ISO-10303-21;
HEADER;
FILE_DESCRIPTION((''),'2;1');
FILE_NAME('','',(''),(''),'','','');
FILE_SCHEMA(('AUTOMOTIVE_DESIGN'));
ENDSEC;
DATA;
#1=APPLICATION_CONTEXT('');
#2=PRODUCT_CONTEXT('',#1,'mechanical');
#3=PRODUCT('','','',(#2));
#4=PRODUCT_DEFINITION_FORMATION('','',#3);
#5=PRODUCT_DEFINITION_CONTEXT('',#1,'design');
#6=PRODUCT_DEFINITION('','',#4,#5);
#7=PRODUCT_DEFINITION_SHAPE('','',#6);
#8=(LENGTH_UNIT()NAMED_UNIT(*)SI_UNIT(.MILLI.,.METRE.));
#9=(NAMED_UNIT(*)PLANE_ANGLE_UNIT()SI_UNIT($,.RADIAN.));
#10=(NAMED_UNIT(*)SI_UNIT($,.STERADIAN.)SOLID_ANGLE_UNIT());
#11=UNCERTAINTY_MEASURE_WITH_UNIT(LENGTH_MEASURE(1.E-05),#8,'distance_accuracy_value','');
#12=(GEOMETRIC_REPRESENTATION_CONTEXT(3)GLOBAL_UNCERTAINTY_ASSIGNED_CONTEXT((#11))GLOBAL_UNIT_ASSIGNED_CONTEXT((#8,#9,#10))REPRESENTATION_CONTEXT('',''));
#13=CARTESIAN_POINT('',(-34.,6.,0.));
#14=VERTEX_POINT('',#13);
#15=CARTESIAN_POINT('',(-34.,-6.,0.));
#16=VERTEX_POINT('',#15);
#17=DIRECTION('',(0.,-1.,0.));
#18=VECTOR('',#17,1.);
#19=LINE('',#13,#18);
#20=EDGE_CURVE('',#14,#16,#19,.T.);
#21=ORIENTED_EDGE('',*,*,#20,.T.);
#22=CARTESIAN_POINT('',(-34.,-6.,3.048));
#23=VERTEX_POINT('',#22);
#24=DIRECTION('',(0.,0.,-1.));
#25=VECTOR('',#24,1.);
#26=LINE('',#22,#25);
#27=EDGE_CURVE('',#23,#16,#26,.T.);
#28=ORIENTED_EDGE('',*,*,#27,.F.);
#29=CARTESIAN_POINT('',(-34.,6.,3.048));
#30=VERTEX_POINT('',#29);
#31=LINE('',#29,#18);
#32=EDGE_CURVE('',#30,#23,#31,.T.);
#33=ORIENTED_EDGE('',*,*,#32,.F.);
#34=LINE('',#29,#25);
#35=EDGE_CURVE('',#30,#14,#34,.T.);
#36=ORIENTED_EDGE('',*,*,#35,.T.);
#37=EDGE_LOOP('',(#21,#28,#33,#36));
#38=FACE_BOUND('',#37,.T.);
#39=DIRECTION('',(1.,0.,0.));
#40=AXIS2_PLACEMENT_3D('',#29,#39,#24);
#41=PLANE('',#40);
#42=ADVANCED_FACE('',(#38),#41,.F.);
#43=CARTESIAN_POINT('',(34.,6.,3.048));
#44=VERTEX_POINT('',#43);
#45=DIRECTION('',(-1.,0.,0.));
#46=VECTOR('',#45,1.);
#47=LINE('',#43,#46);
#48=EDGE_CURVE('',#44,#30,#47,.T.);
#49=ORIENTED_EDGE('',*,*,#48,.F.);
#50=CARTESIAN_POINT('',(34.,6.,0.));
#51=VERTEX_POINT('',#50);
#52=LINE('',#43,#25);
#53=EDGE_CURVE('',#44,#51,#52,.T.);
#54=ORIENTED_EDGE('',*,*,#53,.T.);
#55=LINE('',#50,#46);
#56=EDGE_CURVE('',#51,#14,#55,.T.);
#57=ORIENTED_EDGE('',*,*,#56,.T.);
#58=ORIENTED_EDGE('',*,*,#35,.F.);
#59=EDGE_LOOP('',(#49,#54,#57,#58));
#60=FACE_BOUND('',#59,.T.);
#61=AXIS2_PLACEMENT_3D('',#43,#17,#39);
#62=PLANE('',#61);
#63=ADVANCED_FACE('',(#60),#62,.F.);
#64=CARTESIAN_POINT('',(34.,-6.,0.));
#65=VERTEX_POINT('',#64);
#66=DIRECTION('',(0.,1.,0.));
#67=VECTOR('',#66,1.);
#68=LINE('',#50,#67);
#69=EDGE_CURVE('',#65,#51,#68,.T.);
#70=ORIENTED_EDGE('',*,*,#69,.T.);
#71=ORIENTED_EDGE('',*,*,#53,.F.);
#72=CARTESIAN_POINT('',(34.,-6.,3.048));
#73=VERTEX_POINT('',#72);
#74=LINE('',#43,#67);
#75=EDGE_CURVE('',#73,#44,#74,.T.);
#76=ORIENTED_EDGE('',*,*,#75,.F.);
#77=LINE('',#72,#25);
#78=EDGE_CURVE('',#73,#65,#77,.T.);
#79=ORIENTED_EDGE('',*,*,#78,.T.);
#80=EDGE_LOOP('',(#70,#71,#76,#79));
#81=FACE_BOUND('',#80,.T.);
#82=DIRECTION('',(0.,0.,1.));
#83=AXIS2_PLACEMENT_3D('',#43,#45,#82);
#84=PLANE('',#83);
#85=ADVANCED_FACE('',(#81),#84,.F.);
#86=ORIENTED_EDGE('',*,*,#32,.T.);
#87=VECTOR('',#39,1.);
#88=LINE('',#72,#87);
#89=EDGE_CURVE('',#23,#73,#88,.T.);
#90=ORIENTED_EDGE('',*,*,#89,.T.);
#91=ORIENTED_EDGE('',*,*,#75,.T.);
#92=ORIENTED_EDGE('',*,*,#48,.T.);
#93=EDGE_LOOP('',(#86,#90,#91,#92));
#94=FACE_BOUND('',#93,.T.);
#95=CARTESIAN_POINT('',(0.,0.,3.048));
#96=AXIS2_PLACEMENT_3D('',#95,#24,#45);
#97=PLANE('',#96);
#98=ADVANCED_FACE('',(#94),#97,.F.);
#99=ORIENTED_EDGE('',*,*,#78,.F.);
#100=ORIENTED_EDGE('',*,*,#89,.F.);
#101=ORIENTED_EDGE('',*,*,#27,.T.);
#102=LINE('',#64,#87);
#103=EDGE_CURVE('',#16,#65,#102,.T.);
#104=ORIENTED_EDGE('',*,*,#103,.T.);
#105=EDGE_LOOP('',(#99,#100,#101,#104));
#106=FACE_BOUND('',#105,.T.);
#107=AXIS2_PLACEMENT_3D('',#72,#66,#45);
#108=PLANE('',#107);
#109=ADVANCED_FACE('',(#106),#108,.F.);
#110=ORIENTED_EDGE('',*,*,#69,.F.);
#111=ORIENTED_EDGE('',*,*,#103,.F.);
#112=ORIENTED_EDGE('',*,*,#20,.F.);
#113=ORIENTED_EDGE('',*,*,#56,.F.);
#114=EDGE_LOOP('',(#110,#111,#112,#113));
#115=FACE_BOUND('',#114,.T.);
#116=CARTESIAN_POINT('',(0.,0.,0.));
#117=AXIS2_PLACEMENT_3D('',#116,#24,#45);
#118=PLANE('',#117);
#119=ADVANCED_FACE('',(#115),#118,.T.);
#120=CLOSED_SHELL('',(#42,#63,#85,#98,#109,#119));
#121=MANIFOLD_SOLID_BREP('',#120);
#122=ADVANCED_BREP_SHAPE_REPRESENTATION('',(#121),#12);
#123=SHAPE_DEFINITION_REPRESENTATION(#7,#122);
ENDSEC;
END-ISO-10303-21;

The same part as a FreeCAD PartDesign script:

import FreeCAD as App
import Part
import Sketcher

doc = App.newDocument("Part")
body = doc.addObject("PartDesign::Body", "Body")

sketch1 = body.newObject("Sketcher::SketchObject", "Sketch")
sketch1.AttachmentSupport = (doc.getObject("XY_Plane"), [""])
sketch1.MapMode = "FlatFace"
sketch1.addGeometry([
    Part.LineSegment(App.Vector(-34, 6, 0), App.Vector(-34, -6, 0)),
    Part.LineSegment(App.Vector(-34, -6, 0), App.Vector(34, -6, 0)),
    Part.LineSegment(App.Vector(34, -6, 0), App.Vector(34, 6, 0)),
    Part.LineSegment(App.Vector(34, 6, 0), App.Vector(-34, 6, 0)),
], False)
sketch1.addConstraint([
    Sketcher.Constraint("Coincident", 0, 2, 1, 1),
    Sketcher.Constraint("Coincident", 1, 2, 2, 1),
    Sketcher.Constraint("Coincident", 2, 2, 3, 1),
    Sketcher.Constraint("Coincident", 3, 2, 0, 1),
    Sketcher.Constraint("Vertical", 0),
    Sketcher.Constraint("Horizontal", 1),
    Sketcher.Constraint("Vertical", 2),
    Sketcher.Constraint("Horizontal", 3),
    Sketcher.Constraint("Symmetric", 0, 2, 2, 2, -1, 1),
    Sketcher.Constraint("DistanceX", 1, 1, 1, 2, 68.0),
    Sketcher.Constraint("DistanceY", 0, 2, 0, 1, 12.0),
])
pad1 = body.newObject("PartDesign::Pad", "Pad")
pad1.Profile = sketch1
pad1.Length = 3.048

doc.recompute()
